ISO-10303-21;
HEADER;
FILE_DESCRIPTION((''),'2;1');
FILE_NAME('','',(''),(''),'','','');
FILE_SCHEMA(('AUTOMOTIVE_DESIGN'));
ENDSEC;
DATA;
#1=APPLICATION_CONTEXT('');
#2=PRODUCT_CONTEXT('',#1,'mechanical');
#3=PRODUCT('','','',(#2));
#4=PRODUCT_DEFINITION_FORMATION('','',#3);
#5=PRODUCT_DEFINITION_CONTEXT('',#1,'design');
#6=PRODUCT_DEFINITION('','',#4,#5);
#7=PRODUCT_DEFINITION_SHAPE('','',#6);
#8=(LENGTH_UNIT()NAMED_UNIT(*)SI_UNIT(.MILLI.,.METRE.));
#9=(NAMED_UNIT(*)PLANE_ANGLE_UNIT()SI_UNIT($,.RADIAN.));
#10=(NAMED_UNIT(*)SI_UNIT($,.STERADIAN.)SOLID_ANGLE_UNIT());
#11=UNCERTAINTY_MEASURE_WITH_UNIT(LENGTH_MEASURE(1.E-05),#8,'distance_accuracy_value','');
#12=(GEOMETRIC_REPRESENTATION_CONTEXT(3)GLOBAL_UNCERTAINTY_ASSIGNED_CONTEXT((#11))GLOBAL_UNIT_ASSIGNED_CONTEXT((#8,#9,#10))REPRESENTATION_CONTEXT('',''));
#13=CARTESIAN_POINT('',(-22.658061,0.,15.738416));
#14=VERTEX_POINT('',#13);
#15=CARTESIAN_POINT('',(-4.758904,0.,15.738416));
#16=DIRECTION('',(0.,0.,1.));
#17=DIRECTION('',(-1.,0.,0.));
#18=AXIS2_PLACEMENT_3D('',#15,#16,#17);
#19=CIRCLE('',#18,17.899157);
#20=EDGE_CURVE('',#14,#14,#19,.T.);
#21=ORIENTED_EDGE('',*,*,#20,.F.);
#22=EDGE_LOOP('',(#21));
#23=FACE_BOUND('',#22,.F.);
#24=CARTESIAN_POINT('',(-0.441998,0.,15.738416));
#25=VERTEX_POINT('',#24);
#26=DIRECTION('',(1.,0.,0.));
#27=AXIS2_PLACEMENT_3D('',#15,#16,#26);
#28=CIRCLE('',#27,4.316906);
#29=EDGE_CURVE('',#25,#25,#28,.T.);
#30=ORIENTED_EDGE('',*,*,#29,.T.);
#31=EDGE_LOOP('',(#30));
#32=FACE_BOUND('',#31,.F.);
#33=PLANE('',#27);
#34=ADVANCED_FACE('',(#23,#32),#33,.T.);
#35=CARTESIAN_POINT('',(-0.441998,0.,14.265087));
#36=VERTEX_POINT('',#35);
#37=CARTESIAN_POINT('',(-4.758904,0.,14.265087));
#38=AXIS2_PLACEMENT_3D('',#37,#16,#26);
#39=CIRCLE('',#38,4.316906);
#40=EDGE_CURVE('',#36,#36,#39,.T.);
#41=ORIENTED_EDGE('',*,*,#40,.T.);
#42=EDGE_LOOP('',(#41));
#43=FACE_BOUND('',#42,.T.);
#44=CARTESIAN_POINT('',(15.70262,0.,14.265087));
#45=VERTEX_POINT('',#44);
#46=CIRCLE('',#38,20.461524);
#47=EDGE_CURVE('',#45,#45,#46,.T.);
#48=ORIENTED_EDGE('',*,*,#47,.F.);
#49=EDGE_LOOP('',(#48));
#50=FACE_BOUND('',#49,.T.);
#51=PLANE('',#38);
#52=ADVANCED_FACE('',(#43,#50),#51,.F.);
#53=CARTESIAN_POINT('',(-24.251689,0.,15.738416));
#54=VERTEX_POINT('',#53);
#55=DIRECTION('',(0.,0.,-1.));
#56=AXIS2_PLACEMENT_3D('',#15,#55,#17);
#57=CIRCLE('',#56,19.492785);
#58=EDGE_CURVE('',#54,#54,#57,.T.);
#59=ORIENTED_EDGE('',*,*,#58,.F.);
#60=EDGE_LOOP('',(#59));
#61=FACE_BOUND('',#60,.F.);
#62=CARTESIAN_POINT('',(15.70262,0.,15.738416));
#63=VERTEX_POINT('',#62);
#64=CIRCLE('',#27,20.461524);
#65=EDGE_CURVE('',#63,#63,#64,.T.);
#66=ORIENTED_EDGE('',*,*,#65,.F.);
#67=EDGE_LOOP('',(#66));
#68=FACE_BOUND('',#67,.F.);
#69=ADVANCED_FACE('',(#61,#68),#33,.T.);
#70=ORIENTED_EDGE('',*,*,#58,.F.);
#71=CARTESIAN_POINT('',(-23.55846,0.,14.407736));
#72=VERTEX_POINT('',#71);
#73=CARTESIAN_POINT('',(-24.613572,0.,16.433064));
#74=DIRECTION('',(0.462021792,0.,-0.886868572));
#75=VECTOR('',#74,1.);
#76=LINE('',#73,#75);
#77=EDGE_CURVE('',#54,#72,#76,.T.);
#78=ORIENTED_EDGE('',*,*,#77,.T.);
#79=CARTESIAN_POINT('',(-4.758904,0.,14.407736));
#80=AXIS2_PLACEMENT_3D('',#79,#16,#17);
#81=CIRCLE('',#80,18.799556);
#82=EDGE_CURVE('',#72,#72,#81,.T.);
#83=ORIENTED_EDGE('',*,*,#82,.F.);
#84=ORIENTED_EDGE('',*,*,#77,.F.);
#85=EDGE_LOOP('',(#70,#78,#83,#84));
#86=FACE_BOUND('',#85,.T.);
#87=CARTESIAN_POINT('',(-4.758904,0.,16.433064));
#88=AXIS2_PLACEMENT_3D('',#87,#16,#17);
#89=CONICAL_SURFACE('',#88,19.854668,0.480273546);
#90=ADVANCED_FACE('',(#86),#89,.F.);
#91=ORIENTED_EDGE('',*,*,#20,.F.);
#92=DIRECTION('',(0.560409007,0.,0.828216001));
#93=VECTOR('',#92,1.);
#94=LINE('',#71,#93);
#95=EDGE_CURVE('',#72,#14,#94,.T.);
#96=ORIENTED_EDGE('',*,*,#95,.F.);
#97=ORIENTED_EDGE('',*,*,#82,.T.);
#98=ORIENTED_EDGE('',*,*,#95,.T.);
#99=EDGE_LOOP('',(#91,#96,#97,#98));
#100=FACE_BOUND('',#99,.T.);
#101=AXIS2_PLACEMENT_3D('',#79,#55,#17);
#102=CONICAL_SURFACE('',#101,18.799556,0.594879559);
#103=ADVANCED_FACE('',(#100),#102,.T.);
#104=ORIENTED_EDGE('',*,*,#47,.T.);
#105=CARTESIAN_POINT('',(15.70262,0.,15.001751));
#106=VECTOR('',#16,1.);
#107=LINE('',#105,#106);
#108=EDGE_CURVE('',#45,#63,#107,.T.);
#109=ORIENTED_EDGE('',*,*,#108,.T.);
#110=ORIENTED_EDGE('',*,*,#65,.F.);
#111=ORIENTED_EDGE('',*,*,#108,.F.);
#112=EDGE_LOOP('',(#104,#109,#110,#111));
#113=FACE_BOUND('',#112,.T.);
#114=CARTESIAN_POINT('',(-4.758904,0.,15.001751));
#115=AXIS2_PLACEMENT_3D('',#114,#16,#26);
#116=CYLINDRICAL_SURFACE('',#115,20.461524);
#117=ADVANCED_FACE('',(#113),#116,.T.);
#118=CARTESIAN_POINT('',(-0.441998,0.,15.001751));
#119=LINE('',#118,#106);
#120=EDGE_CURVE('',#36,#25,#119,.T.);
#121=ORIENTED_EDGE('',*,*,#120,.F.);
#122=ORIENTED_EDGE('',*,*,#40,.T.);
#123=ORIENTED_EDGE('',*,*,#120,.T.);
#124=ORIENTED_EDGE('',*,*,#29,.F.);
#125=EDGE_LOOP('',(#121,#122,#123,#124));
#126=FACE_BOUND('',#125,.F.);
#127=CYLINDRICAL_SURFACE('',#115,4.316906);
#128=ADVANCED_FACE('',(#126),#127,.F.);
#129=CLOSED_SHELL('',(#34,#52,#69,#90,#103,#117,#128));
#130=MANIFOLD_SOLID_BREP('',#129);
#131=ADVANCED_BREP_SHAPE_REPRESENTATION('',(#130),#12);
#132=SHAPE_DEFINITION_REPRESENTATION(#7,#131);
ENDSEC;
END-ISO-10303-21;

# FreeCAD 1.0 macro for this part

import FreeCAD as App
import Part
import Sketcher

V = App.Vector

doc = App.newDocument("Part")
body = doc.addObject("PartDesign::Body", "Body")

# Sketch on XZ plane
sketch1 = doc.addObject("Sketcher::SketchObject", "Sketch")
body.addObject(sketch1)
sketch1.AttachmentSupport = (doc.XZ_Plane, [""])
sketch1.MapMode = "FlatFace"
sketch1.addGeometry(Part.LineSegment(V(-0.441998, 15.738416, 0), V(-0.441998, 14.265087, 0)), False)
sketch1.addGeometry(Part.LineSegment(V(-0.441998, 14.265087, 0), V(15.70262, 14.265087, 0)), False)
sketch1.addGeometry(Part.LineSegment(V(15.70262, 14.265087, 0), V(15.70262, 15.738416, 0)), False)
sketch1.addGeometry(Part.LineSegment(V(15.70262, 15.738416, 0), V(-0.441998, 15.738416, 0)), False)
sketch1.addGeometry(Part.LineSegment(V(-4.758904, 14.265087, 0), V(-4.758904, 15.738416, 0)), True)  # axis
sketch1.addConstraint(Sketcher.Constraint("Coincident", 0, 2, 1, 1))
sketch1.addConstraint(Sketcher.Constraint("Coincident", 1, 2, 2, 1))
sketch1.addConstraint(Sketcher.Constraint("Coincident", 2, 2, 3, 1))
sketch1.addConstraint(Sketcher.Constraint("Coincident", 3, 2, 0, 1))
sketch1.addConstraint(Sketcher.Constraint("Vertical", 0))
sketch1.addConstraint(Sketcher.Constraint("Horizontal", 1))
sketch1.addConstraint(Sketcher.Constraint("Vertical", 2))
sketch1.addConstraint(Sketcher.Constraint("Horizontal", 3))
sketch1.addConstraint(Sketcher.Constraint("Vertical", 4))
sketch1.addConstraint(Sketcher.Constraint("Horizontal", 1, 2, 4, 1))
sketch1.addConstraint(Sketcher.Constraint("Horizontal", 3, 2, 4, 2))
sketch1.addConstraint(Sketcher.Constraint("DistanceX", 1, 1, 1, 2, 16.144618))
sketch1.addConstraint(Sketcher.Constraint("DistanceY", 0, 2, 0, 1, 1.473329))
sketch1.addConstraint(Sketcher.Constraint("DistanceX", -1, 1, 1, 2, 15.70262))
sketch1.addConstraint(Sketcher.Constraint("DistanceY", -1, 1, 0, 2, 14.265087))
sketch1.addConstraint(Sketcher.Constraint("DistanceX", 4, 1, -1, 1, 4.758904))
revolution = doc.addObject("PartDesign::Revolution", "Revolution")
body.addObject(revolution)
revolution.Profile = sketch1
revolution.ReferenceAxis = (sketch1, ["Axis0"])
revolution.Angle = 360

# Sketch on XZ plane
sketch2 = doc.addObject("Sketcher::SketchObject", "Sketch001")
body.addObject(sketch2)
sketch2.AttachmentSupport = (doc.XZ_Plane, [""])
sketch2.MapMode = "FlatFace"
sketch2.addGeometry(Part.LineSegment(V(-24.613572, 16.433064, 0), V(-23.55846, 14.407736, 0)), False)
sketch2.addGeometry(Part.LineSegment(V(-23.55846, 14.407736, 0), V(-22.18803, 16.433064, 0)), False)
sketch2.addGeometry(Part.LineSegment(V(-22.18803, 16.433064, 0), V(-24.613572, 16.433064, 0)), False)
sketch2.addGeometry(Part.LineSegment(V(-4.758904, 14.407736, 0), V(-4.758904, 16.433064, 0)), True)  # axis
sketch2.addConstraint(Sketcher.Constraint("Coincident", 0, 2, 1, 1))
sketch2.addConstraint(Sketcher.Constraint("Coincident", 1, 2, 2, 1))
sketch2.addConstraint(Sketcher.Constraint("Coincident", 2, 2, 0, 1))
sketch2.addConstraint(Sketcher.Constraint("Horizontal", 2))
sketch2.addConstraint(Sketcher.Constraint("Vertical", 3))
sketch2.addConstraint(Sketcher.Constraint("Horizontal", 0, 2, 3, 1))
sketch2.addConstraint(Sketcher.Constraint("Horizontal", 2, 2, 3, 2))
sketch2.addConstraint(Sketcher.Constraint("DistanceY", 3, 1, 3, 2, 2.025328))
sketch2.addConstraint(Sketcher.Constraint("Distance", 1, 2.44541))
sketch2.addConstraint(Sketcher.Constraint("DistanceX", 2, 2, 2, 1, 2.425542))
sketch2.addConstraint(Sketcher.Constraint("DistanceX", 0, 2, -1, 1, 23.55846))
sketch2.addConstraint(Sketcher.Constraint("DistanceX", 2, 2, 3, 1, 19.854668))
sketch2.addConstraint(Sketcher.Constraint("DistanceY", -1, 1, 0, 2, 14.407736))
groove = doc.addObject("PartDesign::Groove", "Groove")
body.addObject(groove)
groove.Profile = sketch2
groove.ReferenceAxis = (sketch2, ["Axis0"])
groove.Angle = 360

doc.recompute()
